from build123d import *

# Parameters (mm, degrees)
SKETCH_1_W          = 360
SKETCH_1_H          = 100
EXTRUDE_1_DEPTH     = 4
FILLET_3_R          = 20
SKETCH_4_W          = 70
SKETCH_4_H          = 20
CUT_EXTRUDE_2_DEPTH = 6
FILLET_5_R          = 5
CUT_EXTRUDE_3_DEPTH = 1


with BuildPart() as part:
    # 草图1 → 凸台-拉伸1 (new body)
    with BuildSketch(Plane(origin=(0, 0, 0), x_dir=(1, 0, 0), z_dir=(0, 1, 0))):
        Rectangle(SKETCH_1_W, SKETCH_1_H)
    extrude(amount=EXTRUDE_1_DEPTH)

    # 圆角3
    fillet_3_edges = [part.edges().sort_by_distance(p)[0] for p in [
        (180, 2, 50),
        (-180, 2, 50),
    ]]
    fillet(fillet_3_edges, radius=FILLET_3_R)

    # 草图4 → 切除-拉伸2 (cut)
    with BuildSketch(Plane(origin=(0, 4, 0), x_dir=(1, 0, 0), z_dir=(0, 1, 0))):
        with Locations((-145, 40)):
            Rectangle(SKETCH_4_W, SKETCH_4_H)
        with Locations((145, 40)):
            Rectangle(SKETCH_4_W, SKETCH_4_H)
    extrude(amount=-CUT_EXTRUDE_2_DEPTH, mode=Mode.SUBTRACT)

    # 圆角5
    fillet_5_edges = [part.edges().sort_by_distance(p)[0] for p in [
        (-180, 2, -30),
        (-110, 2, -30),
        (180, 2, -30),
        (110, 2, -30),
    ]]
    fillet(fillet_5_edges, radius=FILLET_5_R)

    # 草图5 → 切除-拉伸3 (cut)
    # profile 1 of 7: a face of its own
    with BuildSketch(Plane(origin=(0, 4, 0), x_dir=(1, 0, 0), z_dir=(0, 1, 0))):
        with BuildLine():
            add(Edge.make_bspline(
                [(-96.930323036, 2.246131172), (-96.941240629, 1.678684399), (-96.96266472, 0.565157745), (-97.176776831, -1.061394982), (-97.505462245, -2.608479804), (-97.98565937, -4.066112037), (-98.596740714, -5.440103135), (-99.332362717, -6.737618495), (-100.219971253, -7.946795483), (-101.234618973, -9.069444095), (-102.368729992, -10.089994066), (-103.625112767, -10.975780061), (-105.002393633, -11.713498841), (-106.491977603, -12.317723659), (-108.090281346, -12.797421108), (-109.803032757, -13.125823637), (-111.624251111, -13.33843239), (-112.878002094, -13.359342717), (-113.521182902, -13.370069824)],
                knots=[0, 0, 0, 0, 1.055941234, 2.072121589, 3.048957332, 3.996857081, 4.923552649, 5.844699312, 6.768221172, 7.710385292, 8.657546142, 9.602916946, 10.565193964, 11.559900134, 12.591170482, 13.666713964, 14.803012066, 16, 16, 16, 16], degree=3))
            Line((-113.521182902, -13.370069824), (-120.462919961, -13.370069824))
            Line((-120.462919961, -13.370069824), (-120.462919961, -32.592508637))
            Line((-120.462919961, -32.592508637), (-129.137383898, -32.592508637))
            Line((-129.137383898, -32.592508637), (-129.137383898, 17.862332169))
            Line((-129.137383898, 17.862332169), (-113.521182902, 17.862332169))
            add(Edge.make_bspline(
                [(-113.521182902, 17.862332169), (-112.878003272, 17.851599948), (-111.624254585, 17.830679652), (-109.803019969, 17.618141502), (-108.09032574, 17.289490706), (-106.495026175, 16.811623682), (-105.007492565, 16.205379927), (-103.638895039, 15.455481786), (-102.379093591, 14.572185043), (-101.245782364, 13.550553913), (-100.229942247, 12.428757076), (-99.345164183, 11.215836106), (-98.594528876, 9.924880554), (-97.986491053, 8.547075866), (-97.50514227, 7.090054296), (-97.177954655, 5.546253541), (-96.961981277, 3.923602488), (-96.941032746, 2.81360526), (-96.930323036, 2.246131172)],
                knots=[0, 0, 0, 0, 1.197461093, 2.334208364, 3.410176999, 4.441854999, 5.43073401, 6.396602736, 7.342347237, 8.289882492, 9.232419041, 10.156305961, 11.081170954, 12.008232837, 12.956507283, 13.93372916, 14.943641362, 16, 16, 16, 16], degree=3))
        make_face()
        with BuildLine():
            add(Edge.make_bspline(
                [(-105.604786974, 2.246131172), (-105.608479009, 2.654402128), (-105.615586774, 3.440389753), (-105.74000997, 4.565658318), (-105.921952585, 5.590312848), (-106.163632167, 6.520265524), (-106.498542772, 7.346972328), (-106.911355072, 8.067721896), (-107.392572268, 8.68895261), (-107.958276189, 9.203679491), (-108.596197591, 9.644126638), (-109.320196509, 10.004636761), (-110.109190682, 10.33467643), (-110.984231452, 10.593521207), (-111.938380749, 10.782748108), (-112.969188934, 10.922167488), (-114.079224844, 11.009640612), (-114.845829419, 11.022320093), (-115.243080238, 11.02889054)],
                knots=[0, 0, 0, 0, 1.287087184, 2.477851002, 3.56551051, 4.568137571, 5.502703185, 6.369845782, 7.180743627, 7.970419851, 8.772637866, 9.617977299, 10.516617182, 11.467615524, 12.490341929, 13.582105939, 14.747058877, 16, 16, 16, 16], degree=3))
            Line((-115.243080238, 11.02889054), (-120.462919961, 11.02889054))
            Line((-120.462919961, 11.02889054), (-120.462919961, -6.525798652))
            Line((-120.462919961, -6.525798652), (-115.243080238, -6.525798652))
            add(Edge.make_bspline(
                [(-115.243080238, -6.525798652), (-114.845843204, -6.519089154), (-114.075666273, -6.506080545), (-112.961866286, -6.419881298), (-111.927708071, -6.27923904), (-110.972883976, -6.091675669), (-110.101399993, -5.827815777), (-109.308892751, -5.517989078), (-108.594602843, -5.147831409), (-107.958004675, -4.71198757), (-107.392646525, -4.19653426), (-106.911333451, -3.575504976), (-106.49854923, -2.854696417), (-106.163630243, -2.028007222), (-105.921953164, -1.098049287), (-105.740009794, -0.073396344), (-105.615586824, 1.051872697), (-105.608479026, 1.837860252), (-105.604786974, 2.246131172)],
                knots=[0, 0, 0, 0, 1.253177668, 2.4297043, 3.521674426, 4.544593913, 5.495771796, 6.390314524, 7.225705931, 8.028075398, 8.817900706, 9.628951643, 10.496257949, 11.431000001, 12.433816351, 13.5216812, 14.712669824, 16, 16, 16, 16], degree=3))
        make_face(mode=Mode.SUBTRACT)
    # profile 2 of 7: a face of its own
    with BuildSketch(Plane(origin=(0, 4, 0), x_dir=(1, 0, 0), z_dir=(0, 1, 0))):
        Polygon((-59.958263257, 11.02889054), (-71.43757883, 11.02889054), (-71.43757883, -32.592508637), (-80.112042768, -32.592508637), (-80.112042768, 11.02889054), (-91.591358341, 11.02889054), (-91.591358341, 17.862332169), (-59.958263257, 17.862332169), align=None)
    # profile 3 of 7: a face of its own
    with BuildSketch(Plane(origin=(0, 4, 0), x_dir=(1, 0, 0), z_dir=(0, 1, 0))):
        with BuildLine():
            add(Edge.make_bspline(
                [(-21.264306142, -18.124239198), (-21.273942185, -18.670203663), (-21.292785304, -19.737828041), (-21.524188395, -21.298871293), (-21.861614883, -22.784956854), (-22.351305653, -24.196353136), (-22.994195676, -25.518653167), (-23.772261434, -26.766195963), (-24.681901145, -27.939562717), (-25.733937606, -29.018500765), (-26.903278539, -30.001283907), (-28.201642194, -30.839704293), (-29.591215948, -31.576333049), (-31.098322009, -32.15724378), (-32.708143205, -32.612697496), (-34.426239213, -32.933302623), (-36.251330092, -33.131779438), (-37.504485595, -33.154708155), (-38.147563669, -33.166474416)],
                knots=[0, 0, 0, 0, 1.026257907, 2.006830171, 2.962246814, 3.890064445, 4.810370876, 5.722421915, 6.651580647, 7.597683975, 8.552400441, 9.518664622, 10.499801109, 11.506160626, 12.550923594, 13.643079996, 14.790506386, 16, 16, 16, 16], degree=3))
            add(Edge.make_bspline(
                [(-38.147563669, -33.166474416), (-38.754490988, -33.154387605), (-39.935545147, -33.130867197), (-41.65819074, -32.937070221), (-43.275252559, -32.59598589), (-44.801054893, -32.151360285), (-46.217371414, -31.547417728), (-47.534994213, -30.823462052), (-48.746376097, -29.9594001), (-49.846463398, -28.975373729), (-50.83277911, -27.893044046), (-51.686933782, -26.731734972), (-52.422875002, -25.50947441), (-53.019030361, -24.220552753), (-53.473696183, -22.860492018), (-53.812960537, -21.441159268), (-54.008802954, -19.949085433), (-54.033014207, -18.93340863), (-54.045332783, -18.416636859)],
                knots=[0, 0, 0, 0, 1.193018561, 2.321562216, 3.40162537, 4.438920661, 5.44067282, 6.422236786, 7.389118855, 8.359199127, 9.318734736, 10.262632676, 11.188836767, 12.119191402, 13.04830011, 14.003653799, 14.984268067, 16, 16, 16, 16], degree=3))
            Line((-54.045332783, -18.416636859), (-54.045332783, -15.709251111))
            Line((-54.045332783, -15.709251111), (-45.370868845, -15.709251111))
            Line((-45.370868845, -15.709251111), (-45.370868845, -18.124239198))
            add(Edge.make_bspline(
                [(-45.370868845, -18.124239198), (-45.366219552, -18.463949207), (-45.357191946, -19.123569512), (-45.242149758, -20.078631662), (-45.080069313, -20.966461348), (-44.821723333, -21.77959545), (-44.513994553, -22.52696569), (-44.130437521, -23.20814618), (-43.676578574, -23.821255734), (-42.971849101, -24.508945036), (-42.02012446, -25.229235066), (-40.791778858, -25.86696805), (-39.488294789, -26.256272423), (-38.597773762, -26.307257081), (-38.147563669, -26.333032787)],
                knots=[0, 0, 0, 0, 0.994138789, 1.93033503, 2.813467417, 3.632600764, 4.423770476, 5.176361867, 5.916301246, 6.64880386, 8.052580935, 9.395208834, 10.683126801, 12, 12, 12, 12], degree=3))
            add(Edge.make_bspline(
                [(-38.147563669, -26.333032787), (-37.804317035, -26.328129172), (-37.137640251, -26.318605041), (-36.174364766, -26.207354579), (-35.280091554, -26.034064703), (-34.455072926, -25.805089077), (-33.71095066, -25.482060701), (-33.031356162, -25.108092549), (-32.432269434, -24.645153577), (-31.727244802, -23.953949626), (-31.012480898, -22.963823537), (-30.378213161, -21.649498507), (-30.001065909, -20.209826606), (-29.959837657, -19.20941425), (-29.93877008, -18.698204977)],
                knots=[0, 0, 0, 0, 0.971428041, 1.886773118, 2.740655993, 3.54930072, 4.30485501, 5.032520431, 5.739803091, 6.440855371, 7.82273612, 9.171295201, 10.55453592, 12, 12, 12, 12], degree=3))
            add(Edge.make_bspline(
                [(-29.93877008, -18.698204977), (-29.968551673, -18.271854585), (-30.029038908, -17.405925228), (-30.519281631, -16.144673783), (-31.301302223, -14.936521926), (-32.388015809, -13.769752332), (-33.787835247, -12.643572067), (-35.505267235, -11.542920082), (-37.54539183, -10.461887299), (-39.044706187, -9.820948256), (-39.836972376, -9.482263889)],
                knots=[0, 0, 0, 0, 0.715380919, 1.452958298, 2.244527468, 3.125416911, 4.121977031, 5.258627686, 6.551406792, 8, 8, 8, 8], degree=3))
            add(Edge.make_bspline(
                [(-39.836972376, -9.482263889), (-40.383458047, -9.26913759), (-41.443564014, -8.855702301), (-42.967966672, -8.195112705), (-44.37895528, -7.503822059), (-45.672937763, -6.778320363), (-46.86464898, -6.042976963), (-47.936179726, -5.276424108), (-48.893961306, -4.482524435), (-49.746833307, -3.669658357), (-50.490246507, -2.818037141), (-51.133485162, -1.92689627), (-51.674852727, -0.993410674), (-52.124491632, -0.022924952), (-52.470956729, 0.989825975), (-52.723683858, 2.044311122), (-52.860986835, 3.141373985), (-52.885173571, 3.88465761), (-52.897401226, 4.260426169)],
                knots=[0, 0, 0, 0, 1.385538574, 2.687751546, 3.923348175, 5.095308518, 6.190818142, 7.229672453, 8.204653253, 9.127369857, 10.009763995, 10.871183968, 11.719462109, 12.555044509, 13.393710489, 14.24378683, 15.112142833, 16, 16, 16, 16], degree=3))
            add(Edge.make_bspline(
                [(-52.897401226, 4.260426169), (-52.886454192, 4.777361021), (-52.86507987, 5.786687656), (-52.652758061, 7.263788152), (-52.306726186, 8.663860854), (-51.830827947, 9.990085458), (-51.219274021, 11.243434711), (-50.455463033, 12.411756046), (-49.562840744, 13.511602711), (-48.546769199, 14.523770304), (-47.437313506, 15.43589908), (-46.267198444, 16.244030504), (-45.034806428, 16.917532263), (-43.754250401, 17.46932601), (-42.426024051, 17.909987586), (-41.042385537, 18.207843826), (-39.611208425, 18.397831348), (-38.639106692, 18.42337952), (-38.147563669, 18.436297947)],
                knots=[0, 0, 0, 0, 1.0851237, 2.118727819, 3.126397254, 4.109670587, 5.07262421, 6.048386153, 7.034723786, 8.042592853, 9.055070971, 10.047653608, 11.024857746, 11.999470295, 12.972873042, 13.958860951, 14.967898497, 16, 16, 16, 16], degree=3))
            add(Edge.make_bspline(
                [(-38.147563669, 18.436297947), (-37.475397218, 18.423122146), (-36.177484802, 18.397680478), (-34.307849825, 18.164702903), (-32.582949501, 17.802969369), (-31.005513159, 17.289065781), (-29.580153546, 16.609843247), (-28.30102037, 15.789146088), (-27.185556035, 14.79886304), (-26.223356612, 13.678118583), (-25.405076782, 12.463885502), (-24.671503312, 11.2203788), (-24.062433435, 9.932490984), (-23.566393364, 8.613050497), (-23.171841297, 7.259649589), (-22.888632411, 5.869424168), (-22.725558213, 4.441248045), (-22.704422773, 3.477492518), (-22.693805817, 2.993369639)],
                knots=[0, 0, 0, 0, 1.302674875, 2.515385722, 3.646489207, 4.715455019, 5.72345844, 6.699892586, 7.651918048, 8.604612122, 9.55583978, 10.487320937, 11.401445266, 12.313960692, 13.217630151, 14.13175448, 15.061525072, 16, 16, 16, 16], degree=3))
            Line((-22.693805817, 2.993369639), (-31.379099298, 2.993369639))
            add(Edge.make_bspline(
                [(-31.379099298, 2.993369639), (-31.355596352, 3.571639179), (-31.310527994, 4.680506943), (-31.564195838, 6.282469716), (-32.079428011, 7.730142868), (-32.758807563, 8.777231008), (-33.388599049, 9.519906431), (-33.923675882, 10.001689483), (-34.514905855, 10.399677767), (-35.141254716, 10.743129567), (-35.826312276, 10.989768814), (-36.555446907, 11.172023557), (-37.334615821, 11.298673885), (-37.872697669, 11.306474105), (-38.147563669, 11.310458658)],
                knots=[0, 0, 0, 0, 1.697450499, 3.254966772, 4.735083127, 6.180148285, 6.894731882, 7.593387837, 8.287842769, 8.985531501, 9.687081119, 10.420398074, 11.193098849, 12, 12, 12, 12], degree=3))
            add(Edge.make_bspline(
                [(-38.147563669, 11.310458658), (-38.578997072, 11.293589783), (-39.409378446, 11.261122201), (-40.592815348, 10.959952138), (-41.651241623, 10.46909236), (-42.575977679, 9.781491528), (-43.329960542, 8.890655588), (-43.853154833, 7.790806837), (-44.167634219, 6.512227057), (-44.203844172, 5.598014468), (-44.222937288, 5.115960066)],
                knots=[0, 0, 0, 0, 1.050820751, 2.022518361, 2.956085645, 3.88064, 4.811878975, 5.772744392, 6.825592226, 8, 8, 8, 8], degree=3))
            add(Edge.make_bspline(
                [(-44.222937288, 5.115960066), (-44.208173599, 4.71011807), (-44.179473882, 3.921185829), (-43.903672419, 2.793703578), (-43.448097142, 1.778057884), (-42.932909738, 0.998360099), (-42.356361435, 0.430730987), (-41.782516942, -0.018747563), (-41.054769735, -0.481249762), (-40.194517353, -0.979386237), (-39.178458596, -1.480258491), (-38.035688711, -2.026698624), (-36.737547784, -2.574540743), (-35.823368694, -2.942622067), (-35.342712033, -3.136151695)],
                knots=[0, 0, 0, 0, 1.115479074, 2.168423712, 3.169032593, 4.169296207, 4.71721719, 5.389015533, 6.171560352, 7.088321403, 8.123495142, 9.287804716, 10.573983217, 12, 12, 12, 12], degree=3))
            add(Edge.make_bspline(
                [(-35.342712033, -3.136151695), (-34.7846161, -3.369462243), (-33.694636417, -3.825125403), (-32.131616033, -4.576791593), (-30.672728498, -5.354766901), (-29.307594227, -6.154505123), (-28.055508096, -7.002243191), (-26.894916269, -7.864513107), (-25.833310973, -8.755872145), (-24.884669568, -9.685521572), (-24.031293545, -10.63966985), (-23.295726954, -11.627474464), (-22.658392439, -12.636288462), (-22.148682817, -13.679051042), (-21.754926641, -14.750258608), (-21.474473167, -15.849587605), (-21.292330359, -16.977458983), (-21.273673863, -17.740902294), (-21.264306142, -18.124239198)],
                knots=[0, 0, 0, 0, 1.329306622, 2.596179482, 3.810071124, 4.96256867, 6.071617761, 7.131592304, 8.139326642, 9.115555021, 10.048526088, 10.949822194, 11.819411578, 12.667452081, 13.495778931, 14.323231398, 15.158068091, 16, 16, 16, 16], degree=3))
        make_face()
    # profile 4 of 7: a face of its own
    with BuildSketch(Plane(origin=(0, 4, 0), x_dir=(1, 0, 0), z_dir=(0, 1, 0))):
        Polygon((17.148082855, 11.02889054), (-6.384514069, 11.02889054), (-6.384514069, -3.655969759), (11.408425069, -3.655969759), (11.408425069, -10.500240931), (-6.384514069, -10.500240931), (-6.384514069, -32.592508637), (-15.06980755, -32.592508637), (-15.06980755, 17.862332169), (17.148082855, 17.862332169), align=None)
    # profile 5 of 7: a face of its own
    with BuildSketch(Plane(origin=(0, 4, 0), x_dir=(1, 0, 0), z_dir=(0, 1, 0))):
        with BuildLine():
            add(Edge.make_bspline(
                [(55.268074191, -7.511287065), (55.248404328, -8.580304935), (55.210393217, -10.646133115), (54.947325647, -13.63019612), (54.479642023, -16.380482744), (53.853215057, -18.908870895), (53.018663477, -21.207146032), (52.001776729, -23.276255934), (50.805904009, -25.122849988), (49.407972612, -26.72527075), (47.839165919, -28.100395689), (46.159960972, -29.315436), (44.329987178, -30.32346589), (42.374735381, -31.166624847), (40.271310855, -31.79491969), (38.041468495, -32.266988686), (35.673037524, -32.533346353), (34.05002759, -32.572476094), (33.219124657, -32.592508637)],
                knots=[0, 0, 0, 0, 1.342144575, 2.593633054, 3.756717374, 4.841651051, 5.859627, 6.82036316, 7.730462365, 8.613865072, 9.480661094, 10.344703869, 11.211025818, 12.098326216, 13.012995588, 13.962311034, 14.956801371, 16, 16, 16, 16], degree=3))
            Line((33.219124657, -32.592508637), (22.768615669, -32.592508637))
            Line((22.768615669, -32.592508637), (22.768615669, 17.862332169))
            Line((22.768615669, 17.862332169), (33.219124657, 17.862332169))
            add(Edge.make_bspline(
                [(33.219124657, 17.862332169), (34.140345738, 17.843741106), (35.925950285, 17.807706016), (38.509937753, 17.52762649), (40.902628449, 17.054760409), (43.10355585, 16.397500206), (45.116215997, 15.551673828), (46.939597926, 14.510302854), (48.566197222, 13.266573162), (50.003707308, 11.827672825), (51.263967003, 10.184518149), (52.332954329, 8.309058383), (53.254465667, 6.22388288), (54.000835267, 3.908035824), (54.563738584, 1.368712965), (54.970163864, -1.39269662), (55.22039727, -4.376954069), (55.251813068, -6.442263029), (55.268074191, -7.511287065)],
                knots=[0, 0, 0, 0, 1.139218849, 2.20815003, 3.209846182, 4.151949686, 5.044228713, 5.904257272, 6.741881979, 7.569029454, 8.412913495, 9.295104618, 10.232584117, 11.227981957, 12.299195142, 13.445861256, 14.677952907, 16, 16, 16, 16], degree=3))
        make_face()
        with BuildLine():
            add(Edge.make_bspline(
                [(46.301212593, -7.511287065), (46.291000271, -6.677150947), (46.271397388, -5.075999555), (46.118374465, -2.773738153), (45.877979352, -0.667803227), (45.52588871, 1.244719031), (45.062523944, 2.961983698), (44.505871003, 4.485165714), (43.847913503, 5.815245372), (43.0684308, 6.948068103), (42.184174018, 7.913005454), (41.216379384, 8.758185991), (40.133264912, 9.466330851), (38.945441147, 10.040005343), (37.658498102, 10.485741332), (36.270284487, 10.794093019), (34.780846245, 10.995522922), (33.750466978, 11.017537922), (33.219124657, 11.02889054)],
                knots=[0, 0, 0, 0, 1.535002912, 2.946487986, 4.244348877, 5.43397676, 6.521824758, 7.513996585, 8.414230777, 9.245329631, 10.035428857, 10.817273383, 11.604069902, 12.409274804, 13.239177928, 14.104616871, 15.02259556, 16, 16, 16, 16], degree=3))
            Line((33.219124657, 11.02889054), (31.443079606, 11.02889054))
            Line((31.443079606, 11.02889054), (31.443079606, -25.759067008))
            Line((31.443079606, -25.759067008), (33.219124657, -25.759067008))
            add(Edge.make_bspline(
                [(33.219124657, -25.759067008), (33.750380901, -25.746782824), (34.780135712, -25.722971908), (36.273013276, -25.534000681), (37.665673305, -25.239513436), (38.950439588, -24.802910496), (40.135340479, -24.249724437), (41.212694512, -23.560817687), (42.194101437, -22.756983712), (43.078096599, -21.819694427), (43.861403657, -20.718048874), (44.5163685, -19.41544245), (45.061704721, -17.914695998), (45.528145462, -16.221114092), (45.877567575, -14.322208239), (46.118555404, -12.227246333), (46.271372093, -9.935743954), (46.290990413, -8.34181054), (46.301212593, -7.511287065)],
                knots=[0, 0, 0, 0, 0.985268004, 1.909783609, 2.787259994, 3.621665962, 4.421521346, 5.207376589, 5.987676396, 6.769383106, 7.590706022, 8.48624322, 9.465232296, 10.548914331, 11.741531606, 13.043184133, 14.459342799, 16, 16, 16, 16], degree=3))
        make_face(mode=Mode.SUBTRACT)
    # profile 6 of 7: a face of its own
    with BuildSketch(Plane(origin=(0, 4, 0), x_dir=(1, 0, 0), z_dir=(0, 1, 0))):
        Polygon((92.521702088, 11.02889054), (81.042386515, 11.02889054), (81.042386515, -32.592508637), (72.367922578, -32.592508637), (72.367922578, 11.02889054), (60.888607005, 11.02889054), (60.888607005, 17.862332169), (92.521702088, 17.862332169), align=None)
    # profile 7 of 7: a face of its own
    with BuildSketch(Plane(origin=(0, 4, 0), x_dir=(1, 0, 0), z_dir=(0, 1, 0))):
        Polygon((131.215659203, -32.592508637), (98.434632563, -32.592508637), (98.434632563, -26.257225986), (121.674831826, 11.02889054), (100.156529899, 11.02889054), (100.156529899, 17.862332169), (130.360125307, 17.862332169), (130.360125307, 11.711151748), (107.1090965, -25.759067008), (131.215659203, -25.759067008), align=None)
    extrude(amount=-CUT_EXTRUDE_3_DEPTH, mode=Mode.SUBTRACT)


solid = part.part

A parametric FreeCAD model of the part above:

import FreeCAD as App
import Part
import Sketcher

V = App.Vector


def edges_at(feature, points):
    """Names of the edges that pass closest to the given points."""
    edges = feature.Shape.Edges
    near = lambda p: min(range(len(edges)), key=lambda i: edges[i].distToShape(Part.Vertex(*p))[0])
    return sorted({f"Edge{near(p) + 1}" for p in points})


def add_polygon(sketch, points):
    """Adds a closed chain of lines whose ends are joined by coincident constraints."""
    first, n = sketch.GeometryCount, len(points)
    for a, b in zip(points, points[1:] + points[:1]):
        sketch.addGeometry(Part.LineSegment(App.Vector(*a, 0), App.Vector(*b, 0)), False)
    for i in range(n):
        sketch.addConstraint(Sketcher.Constraint("Coincident", first + i, 2, first + (i + 1) % n, 1))

doc = App.newDocument("Part")
body = doc.addObject("PartDesign::Body", "Body")

sketch1 = doc.addObject("Sketcher::SketchObject", "Sketch")
body.addObject(sketch1)
sketch1.AttachmentSupport = (doc.XZ_Plane, [""])
sketch1.MapMode = "FlatFace"
add_polygon(sketch1, [(-180, -50), (-180, 50), (180, 50), (180, -50)])
sketch1.addConstraint(Sketcher.Constraint("Vertical", 0))
sketch1.addConstraint(Sketcher.Constraint("Horizontal", 1))
sketch1.addConstraint(Sketcher.Constraint("Vertical", 2))
sketch1.addConstraint(Sketcher.Constraint("Horizontal", 3))
sketch1.addConstraint(Sketcher.Constraint("Symmetric", 0, 2, 2, 2, -1, 1))
sketch1.addConstraint(Sketcher.Constraint("DistanceX", 1, 1, 1, 2, 360.0))
sketch1.addConstraint(Sketcher.Constraint("DistanceY", 0, 1, 0, 2, 100.0))
pad1 = doc.addObject("PartDesign::Pad", "Pad")
body.addObject(pad1)
pad1.Profile = sketch1
pad1.Length = 4
pad1.Reversed = True
doc.recompute()

fillet = doc.addObject("PartDesign::Fillet", "Fillet")
body.addObject(fillet)
fillet.Base = (pad1, edges_at(pad1, [(180, 2, 50), (-180, 2, 50)]))
fillet.Radius = 20

sketch2 = doc.addObject("Sketcher::SketchObject", "Sketch001")
body.addObject(sketch2)
sketch2.AttachmentSupport = (doc.XZ_Plane, [""])
sketch2.MapMode = "FlatFace"
sketch2.AttachmentOffset = App.Placement(V(0, 0, -4), App.Rotation())
add_polygon(sketch2, [(-180, -50), (-180, -30), (-110, -30), (-110, -50)])
add_polygon(sketch2, [(110, -50), (110, -30), (180, -30), (180, -50)])
sketch2.addConstraint(Sketcher.Constraint("Vertical", 0))
sketch2.addConstraint(Sketcher.Constraint("Horizontal", 1))
sketch2.addConstraint(Sketcher.Constraint("Vertical", 2))
sketch2.addConstraint(Sketcher.Constraint("Horizontal", 3))
sketch2.addConstraint(Sketcher.Constraint("Vertical", 4))
sketch2.addConstraint(Sketcher.Constraint("Horizontal", 5))
sketch2.addConstraint(Sketcher.Constraint("Vertical", 6))
sketch2.addConstraint(Sketcher.Constraint("Horizontal", 7))
sketch2.addConstraint(Sketcher.Constraint("Symmetric", 1, 2, 4, 2, -2))
sketch2.addConstraint(Sketcher.Constraint("Symmetric", 3, 2, 6, 2, -2))
sketch2.addConstraint(Sketcher.Constraint("DistanceX", 1, 1, 1, 2, 70.0))
sketch2.addConstraint(Sketcher.Constraint("DistanceY", 0, 1, 0, 2, 20.0))
sketch2.addConstraint(Sketcher.Constraint("DistanceX", 0, 2, -1, 1, 180.0))
sketch2.addConstraint(Sketcher.Constraint("DistanceY", 0, 2, -1, 1, 30.0))
pocket1 = doc.addObject("PartDesign::Pocket", "Pocket")
body.addObject(pocket1)
pocket1.Profile = sketch2
pocket1.Length = 6
pocket1.Reversed = True
doc.recompute()

fillet2 = doc.addObject("PartDesign::Fillet", "Fillet001")
body.addObject(fillet2)
fillet2.Base = (pocket1, edges_at(pocket1, [
    (-180, 2, -30),
    (-110, 2, -30),
    (180, 2, -30),
    (110, 2, -30),
]))
fillet2.Radius = 5

sketch3 = doc.addObject("Sketcher::SketchObject", "Sketch002")
body.addObject(sketch3)
sketch3.AttachmentSupport = (doc.XZ_Plane, [""])
sketch3.MapMode = "FlatFace"
sketch3.AttachmentOffset = App.Placement(V(0, 0, -4), App.Rotation())
sketch3.addGeometry(Part.BSplineCurve([V(-96.930323, -2.246131, 0), V(-96.941241, -1.678684, 0), V(-96.962665, -0.565158, 0), V(-97.176777, 1.061395, 0), V(-97.505462, 2.60848, 0), V(-97.985659, 4.066112, 0), V(-98.596741, 5.440103, 0), V(-99.332363, 6.737618, 0), V(-100.219971, 7.946795, 0), V(-101.234619, 9.069444, 0), V(-102.36873, 10.089994, 0), V(-103.625113, 10.97578, 0), V(-105.002394, 11.713499, 0), V(-106.491978, 12.317724, 0), V(-108.090281, 12.797421, 0), V(-109.803033, 13.125824, 0), V(-111.624251, 13.338432, 0), V(-112.878002, 13.359343, 0), V(-113.521183, 13.37007, 0)], [4, 1, 1, 1, 1, 1, 1, 1, 1, 1, 1, 1, 1, 1, 1, 1, 4], [0, 1.055941234, 2.072121589, 3.048957332, 3.996857081, 4.923552649, 5.844699312, 6.768221172, 7.710385292, 8.657546142, 9.602916946, 10.565193964, 11.559900134, 12.591170482, 13.666713964, 14.803012066, 16], False, 3, [1, 1, 1, 1, 1, 1, 1, 1, 1, 1, 1, 1, 1, 1, 1, 1, 1, 1, 1], False), False)
sketch3.addGeometry(Part.BSplineCurve([V(-113.521183, -17.862332, 0), V(-112.878003, -17.8516, 0), V(-111.624255, -17.83068, 0), V(-109.80302, -17.618142, 0), V(-108.090326, -17.289491, 0), V(-106.495026, -16.811624, 0), V(-105.007493, -16.20538, 0), V(-103.638895, -15.455482, 0), V(-102.379094, -14.572185, 0), V(-101.245782, -13.550554, 0), V(-100.229942, -12.428757, 0), V(-99.345164, -11.215836, 0), V(-98.594529, -9.924881, 0), V(-97.986491, -8.547076, 0), V(-97.505142, -7.090054, 0), V(-97.177955, -5.546254, 0), V(-96.961981, -3.923602, 0), V(-96.941033, -2.813605, 0), V(-96.930323, -2.246131, 0)], [4, 1, 1, 1, 1, 1, 1, 1, 1, 1, 1, 1, 1, 1, 1, 1, 4], [0, 1.197461093, 2.334208364, 3.410176999, 4.441854999, 5.43073401, 6.396602736, 7.342347237, 8.289882492, 9.232419041, 10.156305961, 11.081170954, 12.008232837, 12.956507283, 13.93372916, 14.943641362, 16], False, 3, [1, 1, 1, 1, 1, 1, 1, 1, 1, 1, 1, 1, 1, 1, 1, 1, 1, 1, 1], False), False)
sketch3.addGeometry(Part.LineSegment(V(-113.521183, -17.862332, 0), V(-129.137384, -17.862332, 0)), False)
sketch3.addGeometry(Part.LineSegment(V(-129.137384, -17.862332, 0), V(-129.137384, 32.592509, 0)), False)
sketch3.addGeometry(Part.LineSegment(V(-129.137384, 32.592509, 0), V(-120.46292, 32.592509, 0)), False)
sketch3.addGeometry(Part.LineSegment(V(-120.46292, 32.592509, 0), V(-120.46292, 13.37007, 0)), False)
sketch3.addGeometry(Part.LineSegment(V(-120.46292, 13.37007, 0), V(-113.521183, 13.37007, 0)), False)
sketch3.addGeometry(Part.BSplineCurve([V(-115.24308, 6.525799, 0), V(-114.845843, 6.519089, 0), V(-114.075666, 6.506081, 0), V(-112.961866, 6.419881, 0), V(-111.927708, 6.279239, 0), V(-110.972884, 6.091676, 0), V(-110.1014, 5.827816, 0), V(-109.308893, 5.517989, 0), V(-108.594603, 5.147831, 0), V(-107.958005, 4.711988, 0), V(-107.392647, 4.196534, 0), V(-106.911333, 3.575505, 0), V(-106.498549, 2.854696, 0), V(-106.16363, 2.028007, 0), V(-105.921953, 1.098049, 0), V(-105.74001, 0.073396, 0), V(-105.615587, -1.051873, 0), V(-105.608479, -1.83786, 0), V(-105.604787, -2.246131, 0)], [4, 1, 1, 1, 1, 1, 1, 1, 1, 1, 1, 1, 1, 1, 1, 1, 4], [0, 1.253177668, 2.4297043, 3.521674426, 4.544593913, 5.495771796, 6.390314524, 7.225705931, 8.028075398, 8.817900706, 9.628951643, 10.496257949, 11.431000001, 12.433816351, 13.5216812, 14.712669824, 16], False, 3, [1, 1, 1, 1, 1, 1, 1, 1, 1, 1, 1, 1, 1, 1, 1, 1, 1, 1, 1], False), False)
sketch3.addGeometry(Part.LineSegment(V(-115.24308, 6.525799, 0), V(-120.46292, 6.525799, 0)), False)
sketch3.addGeometry(Part.LineSegment(V(-120.46292, 6.525799, 0), V(-120.46292, -11.028891, 0)), False)
sketch3.addGeometry(Part.LineSegment(V(-120.46292, -11.028891, 0), V(-115.24308, -11.028891, 0)), False)
sketch3.addGeometry(Part.BSplineCurve([V(-105.604787, -2.246131, 0), V(-105.608479, -2.654402, 0), V(-105.615587, -3.44039, 0), V(-105.74001, -4.565658, 0), V(-105.921953, -5.590313, 0), V(-106.163632, -6.520266, 0), V(-106.498543, -7.346972, 0), V(-106.911355, -8.067722, 0), V(-107.392572, -8.688953, 0), V(-107.958276, -9.203679, 0), V(-108.596198, -9.644127, 0), V(-109.320197, -10.004637, 0), V(-110.109191, -10.334676, 0), V(-110.984231, -10.593521, 0), V(-111.938381, -10.782748, 0), V(-112.969189, -10.922167, 0), V(-114.079225, -11.009641, 0), V(-114.845829, -11.02232, 0), V(-115.24308, -11.028891, 0)], [4, 1, 1, 1, 1, 1, 1, 1, 1, 1, 1, 1, 1, 1, 1, 1, 4], [0, 1.287087184, 2.477851002, 3.56551051, 4.568137571, 5.502703185, 6.369845782, 7.180743627, 7.970419851, 8.772637866, 9.617977299, 10.516617182, 11.467615524, 12.490341929, 13.582105939, 14.747058877, 16], False, 3, [1, 1, 1, 1, 1, 1, 1, 1, 1, 1, 1, 1, 1, 1, 1, 1, 1, 1, 1], False), False)
add_polygon(sketch3, [(-71.437579, -11.028891), (-59.958263, -11.028891), (-59.958263, -17.862332), (-91.591358, -17.862332), (-91.591358, -11.028891), (-80.112043, -11.028891), (-80.112043, 32.592509), (-71.437579, 32.592509)])
sketch3.addGeometry(Part.BSplineCurve([V(-21.264306, 18.124239, 0), V(-21.273942, 18.670204, 0), V(-21.292785, 19.737828, 0), V(-21.524188, 21.298871, 0), V(-21.861615, 22.784957, 0), V(-22.351306, 24.196353, 0), V(-22.994196, 25.518653, 0), V(-23.772261, 26.766196, 0), V(-24.681901, 27.939563, 0), V(-25.733938, 29.018501, 0), V(-26.903279, 30.001284, 0), V(-28.201642, 30.839704, 0), V(-29.591216, 31.576333, 0), V(-31.098322, 32.157244, 0), V(-32.708143, 32.612697, 0), V(-34.426239, 32.933303, 0), V(-36.25133, 33.131779, 0), V(-37.504486, 33.154708, 0), V(-38.147564, 33.166474, 0)], [4, 1, 1, 1, 1, 1, 1, 1, 1, 1, 1, 1, 1, 1, 1, 1, 4], [0, 1.026257907, 2.006830171, 2.962246814, 3.890064445, 4.810370876, 5.722421915, 6.651580647, 7.597683975, 8.552400441, 9.518664622, 10.499801109, 11.506160626, 12.550923594, 13.643079996, 14.790506386, 16], False, 3, [1, 1, 1, 1, 1, 1, 1, 1, 1, 1, 1, 1, 1, 1, 1, 1, 1, 1, 1], False), False)
sketch3.addGeometry(Part.BSplineCurve([V(-35.342712, 3.136152, 0), V(-34.784616, 3.369462, 0), V(-33.694636, 3.825125, 0), V(-32.131616, 4.576792, 0), V(-30.672728, 5.354767, 0), V(-29.307594, 6.154505, 0), V(-28.055508, 7.002243, 0), V(-26.894916, 7.864513, 0), V(-25.833311, 8.755872, 0), V(-24.88467, 9.685522, 0), V(-24.031294, 10.63967, 0), V(-23.295727, 11.627474, 0), V(-22.658392, 12.636288, 0), V(-22.148683, 13.679051, 0), V(-21.754927, 14.750259, 0), V(-21.474473, 15.849588, 0), V(-21.29233, 16.977459, 0), V(-21.273674, 17.740902, 0), V(-21.264306, 18.124239, 0)], [4, 1, 1, 1, 1, 1, 1, 1, 1, 1, 1, 1, 1, 1, 1, 1, 4], [0, 1.329306622, 2.596179482, 3.810071124, 4.96256867, 6.071617761, 7.131592304, 8.139326642, 9.115555021, 10.048526088, 10.949822194, 11.819411578, 12.667452081, 13.495778931, 14.323231398, 15.158068091, 16], False, 3, [1, 1, 1, 1, 1, 1, 1, 1, 1, 1, 1, 1, 1, 1, 1, 1, 1, 1, 1], False), False)
sketch3.addGeometry(Part.BSplineCurve([V(-44.222937, -5.11596, 0), V(-44.208174, -4.710118, 0), V(-44.179474, -3.921186, 0), V(-43.903672, -2.793704, 0), V(-43.448097, -1.778058, 0), V(-42.93291, -0.99836, 0), V(-42.356361, -0.430731, 0), V(-41.782517, 0.018748, 0), V(-41.05477, 0.48125, 0), V(-40.194517, 0.979386, 0), V(-39.178459, 1.480258, 0), V(-38.035689, 2.026699, 0), V(-36.737548, 2.574541, 0), V(-35.823369, 2.942622, 0), V(-35.342712, 3.136152, 0)], [4, 1, 1, 1, 1, 1, 1, 1, 1, 1, 1, 1, 4], [0, 1.115479074, 2.168423712, 3.169032593, 4.169296207, 4.71721719, 5.389015533, 6.171560352, 7.088321403, 8.123495142, 9.287804716, 10.573983217, 12], False, 3, [1, 1, 1, 1, 1, 1, 1, 1, 1, 1, 1, 1, 1, 1, 1], False), False)
sketch3.addGeometry(Part.BSplineCurve([V(-38.147564, -11.310459, 0), V(-38.578997, -11.29359, 0), V(-39.409378, -11.261122, 0), V(-40.592815, -10.959952, 0), V(-41.651242, -10.469092, 0), V(-42.575978, -9.781492, 0), V(-43.329961, -8.890656, 0), V(-43.853155, -7.790807, 0), V(-44.167634, -6.512227, 0), V(-44.203844, -5.598014, 0), V(-44.222937, -5.11596, 0)], [4, 1, 1, 1, 1, 1, 1, 1, 4], [0, 1.050820751, 2.022518361, 2.956085645, 3.88064, 4.811878975, 5.772744392, 6.825592226, 8], False, 3, [1, 1, 1, 1, 1, 1, 1, 1, 1, 1, 1], False), False)
sketch3.addGeometry(Part.BSplineCurve([V(-31.379099, -2.99337, 0), V(-31.355596, -3.571639, 0), V(-31.310528, -4.680507, 0), V(-31.564196, -6.28247, 0), V(-32.079428, -7.730143, 0), V(-32.758808, -8.777231, 0), V(-33.388599, -9.519906, 0), V(-33.923676, -10.001689, 0), V(-34.514906, -10.399678, 0), V(-35.141255, -10.74313, 0), V(-35.826312, -10.989769, 0), V(-36.555447, -11.172024, 0), V(-37.334616, -11.298674, 0), V(-37.872698, -11.306474, 0), V(-38.147564, -11.310459, 0)], [4, 1, 1, 1, 1, 1, 1, 1, 1, 1, 1, 1, 4], [0, 1.697450499, 3.254966772, 4.735083127, 6.180148285, 6.894731882, 7.593387837, 8.287842769, 8.985531501, 9.687081119, 10.420398074, 11.193098849, 12], False, 3, [1, 1, 1, 1, 1, 1, 1, 1, 1, 1, 1, 1, 1, 1, 1], False), False)
sketch3.addGeometry(Part.LineSegment(V(-31.379099, -2.99337, 0), V(-22.693806, -2.99337, 0)), False)
sketch3.addGeometry(Part.BSplineCurve([V(-38.147564, -18.436298, 0), V(-37.475397, -18.423122, 0), V(-36.177485, -18.39768, 0), V(-34.30785, -18.164703, 0), V(-32.58295, -17.802969, 0), V(-31.005513, -17.289066, 0), V(-29.580154, -16.609843, 0), V(-28.30102, -15.789146, 0), V(-27.185556, -14.798863, 0), V(-26.223357, -13.678119, 0), V(-25.405077, -12.463886, 0), V(-24.671503, -11.220379, 0), V(-24.062433, -9.932491, 0), V(-23.566393, -8.61305, 0), V(-23.171841, -7.25965, 0), V(-22.888632, -5.869424, 0), V(-22.725558, -4.441248, 0), V(-22.704423, -3.477493, 0), V(-22.693806, -2.99337, 0)], [4, 1, 1, 1, 1, 1, 1, 1, 1, 1, 1, 1, 1, 1, 1, 1, 4], [0, 1.302674875, 2.515385722, 3.646489207, 4.715455019, 5.72345844, 6.699892586, 7.651918048, 8.604612122, 9.55583978, 10.487320937, 11.401445266, 12.313960692, 13.217630151, 14.13175448, 15.061525072, 16], False, 3, [1, 1, 1, 1, 1, 1, 1, 1, 1, 1, 1, 1, 1, 1, 1, 1, 1, 1, 1], False), False)
sketch3.addGeometry(Part.BSplineCurve([V(-52.897401, -4.260426, 0), V(-52.886454, -4.777361, 0), V(-52.86508, -5.786688, 0), V(-52.652758, -7.263788, 0), V(-52.306726, -8.663861, 0), V(-51.830828, -9.990085, 0), V(-51.219274, -11.243435, 0), V(-50.455463, -12.411756, 0), V(-49.562841, -13.511603, 0), V(-48.546769, -14.52377, 0), V(-47.437314, -15.435899, 0), V(-46.267198, -16.244031, 0), V(-45.034806, -16.917532, 0), V(-43.75425, -17.469326, 0), V(-42.426024, -17.909988, 0), V(-41.042386, -18.207844, 0), V(-39.611208, -18.397831, 0), V(-38.639107, -18.42338, 0), V(-38.147564, -18.436298, 0)], [4, 1, 1, 1, 1, 1, 1, 1, 1, 1, 1, 1, 1, 1, 1, 1, 4], [0, 1.0851237, 2.118727819, 3.126397254, 4.109670587, 5.07262421, 6.048386153, 7.034723786, 8.042592853, 9.055070971, 10.047653608, 11.024857746, 11.999470295, 12.972873042, 13.958860951, 14.967898497, 16], False, 3, [1, 1, 1, 1, 1, 1, 1, 1, 1, 1, 1, 1, 1, 1, 1, 1, 1, 1, 1], False), False)
sketch3.addGeometry(Part.BSplineCurve([V(-39.836972, 9.482264, 0), V(-40.383458, 9.269138, 0), V(-41.443564, 8.855702, 0), V(-42.967967, 8.195113, 0), V(-44.378955, 7.503822, 0), V(-45.672938, 6.77832, 0), V(-46.864649, 6.042977, 0), V(-47.93618, 5.276424, 0), V(-48.893961, 4.482524, 0), V(-49.746833, 3.669658, 0), V(-50.490247, 2.818037, 0), V(-51.133485, 1.926896, 0), V(-51.674853, 0.993411, 0), V(-52.124492, 0.022925, 0), V(-52.470957, -0.989826, 0), V(-52.723684, -2.044311, 0), V(-52.860987, -3.141374, 0), V(-52.885174, -3.884658, 0), V(-52.897401, -4.260426, 0)], [4, 1, 1, 1, 1, 1, 1, 1, 1, 1, 1, 1, 1, 1, 1, 1, 4], [0, 1.385538574, 2.687751546, 3.923348175, 5.095308518, 6.190818142, 7.229672453, 8.204653253, 9.127369857, 10.009763995, 10.871183968, 11.719462109, 12.555044509, 13.393710489, 14.24378683, 15.112142833, 16], False, 3, [1, 1, 1, 1, 1, 1, 1, 1, 1, 1, 1, 1, 1, 1, 1, 1, 1, 1, 1], False), False)
sketch3.addGeometry(Part.BSplineCurve([V(-29.93877, 18.698205, 0), V(-29.968552, 18.271855, 0), V(-30.029039, 17.405925, 0), V(-30.519282, 16.144674, 0), V(-31.301302, 14.936522, 0), V(-32.388016, 13.769752, 0), V(-33.787835, 12.643572, 0), V(-35.505267, 11.54292, 0), V(-37.545392, 10.461887, 0), V(-39.044706, 9.820948, 0), V(-39.836972, 9.482264, 0)], [4, 1, 1, 1, 1, 1, 1, 1, 4], [0, 0.715380919, 1.452958298, 2.244527468, 3.125416911, 4.121977031, 5.258627686, 6.551406792, 8], False, 3, [1, 1, 1, 1, 1, 1, 1, 1, 1, 1, 1], False), False)
sketch3.addGeometry(Part.BSplineCurve([V(-38.147564, 26.333033, 0), V(-37.804317, 26.328129, 0), V(-37.13764, 26.318605, 0), V(-36.174365, 26.207355, 0), V(-35.280092, 26.034065, 0), V(-34.455073, 25.805089, 0), V(-33.710951, 25.482061, 0), V(-33.031356, 25.108093, 0), V(-32.432269, 24.645154, 0), V(-31.727245, 23.95395, 0), V(-31.012481, 22.963824, 0), V(-30.378213, 21.649499, 0), V(-30.001066, 20.209827, 0), V(-29.959838, 19.209414, 0), V(-29.93877, 18.698205, 0)], [4, 1, 1, 1, 1, 1, 1, 1, 1, 1, 1, 1, 4], [0, 0.971428041, 1.886773118, 2.740655993, 3.54930072, 4.30485501, 5.032520431, 5.739803091, 6.440855371, 7.82273612, 9.171295201, 10.55453592, 12], False, 3, [1, 1, 1, 1, 1, 1, 1, 1, 1, 1, 1, 1, 1, 1, 1], False), False)
sketch3.addGeometry(Part.BSplineCurve([V(-45.370869, 18.124239, 0), V(-45.36622, 18.463949, 0), V(-45.357192, 19.12357, 0), V(-45.24215, 20.078632, 0), V(-45.080069, 20.966461, 0), V(-44.821723, 21.779595, 0), V(-44.513995, 22.526966, 0), V(-44.130438, 23.208146, 0), V(-43.676579, 23.821256, 0), V(-42.971849, 24.508945, 0), V(-42.020124, 25.229235, 0), V(-40.791779, 25.866968, 0), V(-39.488295, 26.256272, 0), V(-38.597774, 26.307257, 0), V(-38.147564, 26.333033, 0)], [4, 1, 1, 1, 1, 1, 1, 1, 1, 1, 1, 1, 4], [0, 0.994138789, 1.93033503, 2.813467417, 3.632600764, 4.423770476, 5.176361867, 5.916301246, 6.64880386, 8.052580935, 9.395208834, 10.683126801, 12], False, 3, [1, 1, 1, 1, 1, 1, 1, 1, 1, 1, 1, 1, 1, 1, 1], False), False)
sketch3.addGeometry(Part.LineSegment(V(-45.370869, 18.124239, 0), V(-45.370869, 15.709251, 0)), False)
sketch3.addGeometry(Part.LineSegment(V(-45.370869, 15.709251, 0), V(-54.045333, 15.709251, 0)), False)
sketch3.addGeometry(Part.LineSegment(V(-54.045333, 15.709251, 0), V(-54.045333, 18.416637, 0)), False)
sketch3.addGeometry(Part.BSplineCurve([V(-38.147564, 33.166474, 0), V(-38.754491, 33.154388, 0), V(-39.935545, 33.130867, 0), V(-41.658191, 32.93707, 0), V(-43.275253, 32.595986, 0), V(-44.801055, 32.15136, 0), V(-46.217371, 31.547418, 0), V(-47.534994, 30.823462, 0), V(-48.746376, 29.9594, 0), V(-49.846463, 28.975374, 0), V(-50.832779, 27.893044, 0), V(-51.686934, 26.731735, 0), V(-52.422875, 25.509474, 0), V(-53.01903, 24.220553, 0), V(-53.473696, 22.860492, 0), V(-53.812961, 21.441159, 0), V(-54.008803, 19.949085, 0), V(-54.033014, 18.933409, 0), V(-54.045333, 18.416637, 0)], [4, 1, 1, 1, 1, 1, 1, 1, 1, 1, 1, 1, 1, 1, 1, 1, 4], [0, 1.193018561, 2.321562216, 3.40162537, 4.438920661, 5.44067282, 6.422236786, 7.389118855, 8.359199127, 9.318734736, 10.262632676, 11.188836767, 12.119191402, 13.04830011, 14.003653799, 14.984268067, 16], False, 3, [1, 1, 1, 1, 1, 1, 1, 1, 1, 1, 1, 1, 1, 1, 1, 1, 1, 1, 1], False), False)
add_polygon(sketch3, [(-6.384514, -11.028891), (17.148083, -11.028891), (17.148083, -17.862332), (-15.069808, -17.862332), (-15.069808, 32.592509), (-6.384514, 32.592509), (-6.384514, 10.500241), (11.408425, 10.500241), (11.408425, 3.65597), (-6.384514, 3.65597)])
sketch3.addGeometry(Part.BSplineCurve([V(55.268074, 7.511287, 0), V(55.248404, 8.580305, 0), V(55.210393, 10.646133, 0), V(54.947326, 13.630196, 0), V(54.479642, 16.380483, 0), V(53.853215, 18.908871, 0), V(53.018663, 21.207146, 0), V(52.001777, 23.276256, 0), V(50.805904, 25.12285, 0), V(49.407973, 26.725271, 0), V(47.839166, 28.100396, 0), V(46.159961, 29.315436, 0), V(44.329987, 30.323466, 0), V(42.374735, 31.166625, 0), V(40.271311, 31.79492, 0), V(38.041468, 32.266989, 0), V(35.673038, 32.533346, 0), V(34.050028, 32.572476, 0), V(33.219125, 32.592509, 0)], [4, 1, 1, 1, 1, 1, 1, 1, 1, 1, 1, 1, 1, 1, 1, 1, 4], [0, 1.342144575, 2.593633054, 3.756717374, 4.841651051, 5.859627, 6.82036316, 7.730462365, 8.613865072, 9.480661094, 10.344703869, 11.211025818, 12.098326216, 13.012995588, 13.962311034, 14.956801371, 16], False, 3, [1, 1, 1, 1, 1, 1, 1, 1, 1, 1, 1, 1, 1, 1, 1, 1, 1, 1, 1], False), False)
sketch3.addGeometry(Part.BSplineCurve([V(33.219125, -17.862332, 0), V(34.140346, -17.843741, 0), V(35.92595, -17.807706, 0), V(38.509938, -17.527626, 0), V(40.902628, -17.05476, 0), V(43.103556, -16.3975, 0), V(45.116216, -15.551674, 0), V(46.939598, -14.510303, 0), V(48.566197, -13.266573, 0), V(50.003707, -11.827673, 0), V(51.263967, -10.184518, 0), V(52.332954, -8.309058, 0), V(53.254466, -6.223883, 0), V(54.000835, -3.908036, 0), V(54.563739, -1.368713, 0), V(54.970164, 1.392697, 0), V(55.220397, 4.376954, 0), V(55.251813, 6.442263, 0), V(55.268074, 7.511287, 0)], [4, 1, 1, 1, 1, 1, 1, 1, 1, 1, 1, 1, 1, 1, 1, 1, 4], [0, 1.139218849, 2.20815003, 3.209846182, 4.151949686, 5.044228713, 5.904257272, 6.741881979, 7.569029454, 8.412913495, 9.295104618, 10.232584117, 11.227981957, 12.299195142, 13.445861256, 14.677952907, 16], False, 3, [1, 1, 1, 1, 1, 1, 1, 1, 1, 1, 1, 1, 1, 1, 1, 1, 1, 1, 1], False), False)
sketch3.addGeometry(Part.LineSegment(V(33.219125, -17.862332, 0), V(22.768616, -17.862332, 0)), False)
sketch3.addGeometry(Part.LineSegment(V(22.768616, -17.862332, 0), V(22.768616, 32.592509, 0)), False)
sketch3.addGeometry(Part.LineSegment(V(22.768616, 32.592509, 0), V(33.219125, 32.592509, 0)), False)
sketch3.addGeometry(Part.BSplineCurve([V(33.219125, 25.759067, 0), V(33.750381, 25.746783, 0), V(34.780136, 25.722972, 0), V(36.273013, 25.534001, 0), V(37.665673, 25.239513, 0), V(38.95044, 24.80291, 0), V(40.13534, 24.249724, 0), V(41.212695, 23.560818, 0), V(42.194101, 22.756984, 0), V(43.078097, 21.819694, 0), V(43.861404, 20.718049, 0), V(44.516368, 19.415442, 0), V(45.061705, 17.914696, 0), V(45.528145, 16.221114, 0), V(45.877568, 14.322208, 0), V(46.118555, 12.227246, 0), V(46.271372, 9.935744, 0), V(46.29099, 8.341811, 0), V(46.301213, 7.511287, 0)], [4, 1, 1, 1, 1, 1, 1, 1, 1, 1, 1, 1, 1, 1, 1, 1, 4], [0, 0.985268004, 1.909783609, 2.787259994, 3.621665962, 4.421521346, 5.207376589, 5.987676396, 6.769383106, 7.590706022, 8.48624322, 9.465232296, 10.548914331, 11.741531606, 13.043184133, 14.459342799, 16], False, 3, [1, 1, 1, 1, 1, 1, 1, 1, 1, 1, 1, 1, 1, 1, 1, 1, 1, 1, 1], False), False)
sketch3.addGeometry(Part.LineSegment(V(33.219125, 25.759067, 0), V(31.44308, 25.759067, 0)), False)
sketch3.addGeometry(Part.LineSegment(V(31.44308, 25.759067, 0), V(31.44308, -11.028891, 0)), False)
sketch3.addGeometry(Part.LineSegment(V(31.44308, -11.028891, 0), V(33.219125, -11.028891, 0)), False)
sketch3.addGeometry(Part.BSplineCurve([V(46.301213, 7.511287, 0), V(46.291, 6.677151, 0), V(46.271397, 5.076, 0), V(46.118374, 2.773738, 0), V(45.877979, 0.667803, 0), V(45.525889, -1.244719, 0), V(45.062524, -2.961984, 0), V(44.505871, -4.485166, 0), V(43.847914, -5.815245, 0), V(43.068431, -6.948068, 0), V(42.184174, -7.913005, 0), V(41.216379, -8.758186, 0), V(40.133265, -9.466331, 0), V(38.945441, -10.040005, 0), V(37.658498, -10.485741, 0), V(36.270284, -10.794093, 0), V(34.780846, -10.995523, 0), V(33.750467, -11.017538, 0), V(33.219125, -11.028891, 0)], [4, 1, 1, 1, 1, 1, 1, 1, 1, 1, 1, 1, 1, 1, 1, 1, 4], [0, 1.535002912, 2.946487986, 4.244348877, 5.43397676, 6.521824758, 7.513996585, 8.414230777, 9.245329631, 10.035428857, 10.817273383, 11.604069902, 12.409274804, 13.239177928, 14.104616871, 15.02259556, 16], False, 3, [1, 1, 1, 1, 1, 1, 1, 1, 1, 1, 1, 1, 1, 1, 1, 1, 1, 1, 1], False), False)
add_polygon(sketch3, [(81.042387, -11.028891), (92.521702, -11.028891), (92.521702, -17.862332), (60.888607, -17.862332), (60.888607, -11.028891), (72.367923, -11.028891), (72.367923, 32.592509), (81.042387, 32.592509)])
add_polygon(sketch3, [(98.434633, 32.592509), (131.215659, 32.592509), (131.215659, 25.759067), (107.109097, 25.759067), (130.360125, -11.711152), (130.360125, -17.862332), (100.15653, -17.862332), (100.15653, -11.028891), (121.674832, -11.028891), (98.434633, 26.257226)])
sketch3.addConstraint(Sketcher.Constraint("Block", 0))
sketch3.addConstraint(Sketcher.Constraint("Block", 1))
sketch3.addConstraint(Sketcher.Constraint("Block", 7))
sketch3.addConstraint(Sketcher.Constraint("Block", 11))
sketch3.addConstraint(Sketcher.Constraint("Block", 20))
sketch3.addConstraint(Sketcher.Constraint("Block", 21))
sketch3.addConstraint(Sketcher.Constraint("Block", 22))
sketch3.addConstraint(Sketcher.Constraint("Block", 23))
sketch3.addConstraint(Sketcher.Constraint("Block", 24))
sketch3.addConstraint(Sketcher.Constraint("Block", 26))
sketch3.addConstraint(Sketcher.Constraint("Block", 27))
sketch3.addConstraint(Sketcher.Constraint("Block", 28))
sketch3.addConstraint(Sketcher.Constraint("Block", 29))
sketch3.addConstraint(Sketcher.Constraint("Block", 30))
sketch3.addConstraint(Sketcher.Constraint("Block", 31))
sketch3.addConstraint(Sketcher.Constraint("Block", 35))
sketch3.addConstraint(Sketcher.Constraint("Block", 46))
sketch3.addConstraint(Sketcher.Constraint("Block", 47))
sketch3.addConstraint(Sketcher.Constraint("Block", 51))
sketch3.addConstraint(Sketcher.Constraint("Block", 55))
sketch3.addConstraint(Sketcher.Constraint("Coincident", 1, 1, 2, 1))
sketch3.addConstraint(Sketcher.Constraint("Coincident", 2, 2, 3, 1))
sketch3.addConstraint(Sketcher.Constraint("Coincident", 3, 2, 4, 1))
sketch3.addConstraint(Sketcher.Constraint("Coincident", 4, 2, 5, 1))
sketch3.addConstraint(Sketcher.Constraint("Coincident", 5, 2, 6, 1))
sketch3.addConstraint(Sketcher.Constraint("Coincident", 6, 2, 0, 2))
sketch3.addConstraint(Sketcher.Constraint("Coincident", 7, 1, 8, 1))
sketch3.addConstraint(Sketcher.Constraint("Coincident", 8, 2, 9, 1))
sketch3.addConstraint(Sketcher.Constraint("Coincident", 9, 2, 10, 1))
sketch3.addConstraint(Sketcher.Constraint("Coincident", 10, 2, 11, 2))
sketch3.addConstraint(Sketcher.Constraint("Coincident", 24, 1, 25, 1))
sketch3.addConstraint(Sketcher.Constraint("Coincident", 25, 2, 26, 2))
sketch3.addConstraint(Sketcher.Constraint("Coincident", 31, 1, 32, 1))
sketch3.addConstraint(Sketcher.Constraint("Coincident", 32, 2, 33, 1))
sketch3.addConstraint(Sketcher.Constraint("Coincident", 33, 2, 34, 1))
sketch3.addConstraint(Sketcher.Constraint("Coincident", 34, 2, 35, 2))
sketch3.addConstraint(Sketcher.Constraint("Coincident", 47, 1, 48, 1))
sketch3.addConstraint(Sketcher.Constraint("Coincident", 48, 2, 49, 1))
sketch3.addConstraint(Sketcher.Constraint("Coincident", 49, 2, 50, 1))
sketch3.addConstraint(Sketcher.Constraint("Coincident", 50, 2, 46, 2))
sketch3.addConstraint(Sketcher.Constraint("Coincident", 51, 1, 52, 1))
sketch3.addConstraint(Sketcher.Constraint("Coincident", 52, 2, 53, 1))
sketch3.addConstraint(Sketcher.Constraint("Coincident", 53, 2, 54, 1))
sketch3.addConstraint(Sketcher.Constraint("Coincident", 54, 2, 55, 2))
sketch3.addConstraint(Sketcher.Constraint("Horizontal", 2))
sketch3.addConstraint(Sketcher.Constraint("Vertical", 3))
sketch3.addConstraint(Sketcher.Constraint("Horizontal", 4))
sketch3.addConstraint(Sketcher.Constraint("Vertical", 5))
sketch3.addConstraint(Sketcher.Constraint("Horizontal", 6))
sketch3.addConstraint(Sketcher.Constraint("Horizontal", 8))
sketch3.addConstraint(Sketcher.Constraint("Vertical", 9))
sketch3.addConstraint(Sketcher.Constraint("Horizontal", 10))
sketch3.addConstraint(Sketcher.Constraint("Horizontal", 12))
sketch3.addConstraint(Sketcher.Constraint("Vertical", 13))
sketch3.addConstraint(Sketcher.Constraint("Horizontal", 14))
sketch3.addConstraint(Sketcher.Constraint("Vertical", 15))
sketch3.addConstraint(Sketcher.Constraint("Horizontal", 16))
sketch3.addConstraint(Sketcher.Constraint("Vertical", 17))
sketch3.addConstraint(Sketcher.Constraint("Horizontal", 18))
sketch3.addConstraint(Sketcher.Constraint("Vertical", 19))
sketch3.addConstraint(Sketcher.Constraint("Vertical", 32))
sketch3.addConstraint(Sketcher.Constraint("Horizontal", 33))
sketch3.addConstraint(Sketcher.Constraint("Vertical", 34))
sketch3.addConstraint(Sketcher.Constraint("Horizontal", 36))
sketch3.addConstraint(Sketcher.Constraint("Vertical", 37))
sketch3.addConstraint(Sketcher.Constraint("Horizontal", 38))
sketch3.addConstraint(Sketcher.Constraint("Vertical", 39))
sketch3.addConstraint(Sketcher.Constraint("Horizontal", 40))
sketch3.addConstraint(Sketcher.Constraint("Vertical", 41))
sketch3.addConstraint(Sketcher.Constraint("Horizontal", 42))
sketch3.addConstraint(Sketcher.Constraint("Vertical", 43))
sketch3.addConstraint(Sketcher.Constraint("Horizontal", 44))
sketch3.addConstraint(Sketcher.Constraint("Vertical", 45))
sketch3.addConstraint(Sketcher.Constraint("Horizontal", 48))
sketch3.addConstraint(Sketcher.Constraint("Vertical", 49))
sketch3.addConstraint(Sketcher.Constraint("Horizontal", 50))
sketch3.addConstraint(Sketcher.Constraint("Horizontal", 52))
sketch3.addConstraint(Sketcher.Constraint("Vertical", 53))
sketch3.addConstraint(Sketcher.Constraint("Horizontal", 54))
sketch3.addConstraint(Sketcher.Constraint("Horizontal", 56))
sketch3.addConstraint(Sketcher.Constraint("Vertical", 57))
sketch3.addConstraint(Sketcher.Constraint("Horizontal", 58))
sketch3.addConstraint(Sketcher.Constraint("Vertical", 59))
sketch3.addConstraint(Sketcher.Constraint("Horizontal", 60))
sketch3.addConstraint(Sketcher.Constraint("Vertical", 61))
sketch3.addConstraint(Sketcher.Constraint("Horizontal", 62))
sketch3.addConstraint(Sketcher.Constraint("Vertical", 63))
sketch3.addConstraint(Sketcher.Constraint("Horizontal", 64))
sketch3.addConstraint(Sketcher.Constraint("Vertical", 65))
sketch3.addConstraint(Sketcher.Constraint("Horizontal", 66))
sketch3.addConstraint(Sketcher.Constraint("Vertical", 68))
sketch3.addConstraint(Sketcher.Constraint("Horizontal", 69))
sketch3.addConstraint(Sketcher.Constraint("Vertical", 70))
sketch3.addConstraint(Sketcher.Constraint("Horizontal", 71))
sketch3.addConstraint(Sketcher.Constraint("Vertical", 73))
sketch3.addConstraint(Sketcher.Constraint("DistanceX", 2, 2, 2, 1, 15.616201))
sketch3.addConstraint(Sketcher.Constraint("DistanceX", 71, 1, 71, 2, 21.518302))
sketch3.addConstraint(Sketcher.Constraint("DistanceY", 17, 1, 17, 2, 43.621399))
sketch3.addConstraint(Sketcher.Constraint("DistanceY", 19, 2, 19, 1, 43.621399))
sketch3.addConstraint(Sketcher.Constraint("DistanceY", 61, 1, 61, 2, 43.621399))
sketch3.addConstraint(Sketcher.Constraint("DistanceY", 63, 2, 63, 1, 43.621399))
sketch3.addConstraint(Sketcher.Constraint("DistanceX", 25, 2, 38, 2, 7.623998))
sketch3.addConstraint(Sketcher.Constraint("DistanceX", 8, 2, 8, 1, 5.21984))
sketch3.addConstraint(Sketcher.Constraint("DistanceX", 38, 2, 38, 1, 32.21789))
sketch3.addConstraint(Sketcher.Constraint("DistanceX", 42, 1, 42, 2, 17.792939))
sketch3.addConstraint(Sketcher.Constraint("DistanceX", 44, 2, 44, 1, 17.792939))
sketch3.addConstraint(Sketcher.Constraint("DistanceX", 48, 2, 48, 1, 10.450509))
sketch3.addConstraint(Sketcher.Constraint("DistanceY", 3, 1, 3, 2, 50.454841))
sketch3.addConstraint(Sketcher.Constraint("DistanceY", 13, 2, 13, 1, 6.833442))
sketch3.addConstraint(Sketcher.Constraint("DistanceY", 32, 2, 32, 1, 2.414988))
sketch3.addConstraint(Sketcher.Constraint("DistanceY", 37, 2, 37, 1, 6.833442))
sketch3.addConstraint(Sketcher.Constraint("DistanceY", 39, 1, 39, 2, 50.454841))
sketch3.addConstraint(Sketcher.Constraint("DistanceY", 43, 2, 43, 1, 6.844271))
sketch3.addConstraint(Sketcher.Constraint("DistanceY", 45, 2, 45, 1, 14.68486))
sketch3.addConstraint(Sketcher.Constraint("DistanceY", 57, 2, 57, 1, 6.833442))
sketch3.addConstraint(Sketcher.Constraint("DistanceY", 65, 2, 65, 1, 6.833442))
sketch3.addConstraint(Sketcher.Constraint("DistanceY", 68, 2, 68, 1, 6.15118))
sketch3.addConstraint(Sketcher.Constraint("DistanceY", 70, 1, 70, 2, 6.833442))
sketch3.addConstraint(Sketcher.Constraint("DistanceY", 13, 2, 6, 2, 31.232402))
sketch3.addConstraint(Sketcher.Constraint("DistanceY", 48, 2, 43, 2, 21.518302))
sketch3.addConstraint(Sketcher.Constraint("DistanceX", 42, 2, 50, 2, 21.8107))
sketch3.addConstraint(Sketcher.Constraint("DistanceY", 56, 2, 50, 2, 43.621399))
sketch3.addConstraint(Sketcher.Constraint("DistanceY", 56, 2, 64, 2, 43.621399))
sketch3.addConstraint(Sketcher.Constraint("DistanceY", 68, 2, 65, 2, 43.621399))
sketch3.addConstraint(Sketcher.Constraint("DistanceX", 4, 1, 4, 2, 8.674464))
sketch3.addConstraint(Sketcher.Constraint("DistanceX", 12, 1, 12, 2, 11.479316))
sketch3.addConstraint(Sketcher.Constraint("DistanceX", 14, 2, 14, 1, 31.633095))
sketch3.addConstraint(Sketcher.Constraint("DistanceX", 16, 1, 16, 2, 11.479316))
sketch3.addConstraint(Sketcher.Constraint("DistanceX", 52, 2, 52, 1, 1.776045))
sketch3.addConstraint(Sketcher.Constraint("DistanceX", 56, 1, 56, 2, 11.479316))
sketch3.addConstraint(Sketcher.Constraint("DistanceX", 58, 2, 58, 1, 31.633095))
sketch3.addConstraint(Sketcher.Constraint("DistanceX", 60, 1, 60, 2, 11.479316))
sketch3.addConstraint(Sketcher.Constraint("DistanceX", 64, 1, 64, 2, 32.781027))
sketch3.addConstraint(Sketcher.Constraint("DistanceX", 66, 2, 66, 1, 24.106563))
sketch3.addConstraint(Sketcher.Constraint("DistanceX", 69, 2, 69, 1, 30.203595))
sketch3.addConstraint(Sketcher.Constraint("DistanceY", 73, 1, 73, 2, 6.335283))
sketch3.addConstraint(Sketcher.Constraint("DistanceX", 14, 2, -1, 1, 91.591358))
sketch3.addConstraint(Sketcher.Constraint("DistanceX", -1, 1, 64, 2, 131.215659))
sketch3.addConstraint(Sketcher.Constraint("DistanceX", -1, 1, 69, 2, 100.15653))
sketch3.addConstraint(Sketcher.Constraint("DistanceX", 48, 2, 58, 2, 38.119991))
pocket2 = doc.addObject("PartDesign::Pocket", "Pocket001")
body.addObject(pocket2)
pocket2.Profile = sketch3
pocket2.Length = 1
pocket2.Reversed = True

doc.recompute()
